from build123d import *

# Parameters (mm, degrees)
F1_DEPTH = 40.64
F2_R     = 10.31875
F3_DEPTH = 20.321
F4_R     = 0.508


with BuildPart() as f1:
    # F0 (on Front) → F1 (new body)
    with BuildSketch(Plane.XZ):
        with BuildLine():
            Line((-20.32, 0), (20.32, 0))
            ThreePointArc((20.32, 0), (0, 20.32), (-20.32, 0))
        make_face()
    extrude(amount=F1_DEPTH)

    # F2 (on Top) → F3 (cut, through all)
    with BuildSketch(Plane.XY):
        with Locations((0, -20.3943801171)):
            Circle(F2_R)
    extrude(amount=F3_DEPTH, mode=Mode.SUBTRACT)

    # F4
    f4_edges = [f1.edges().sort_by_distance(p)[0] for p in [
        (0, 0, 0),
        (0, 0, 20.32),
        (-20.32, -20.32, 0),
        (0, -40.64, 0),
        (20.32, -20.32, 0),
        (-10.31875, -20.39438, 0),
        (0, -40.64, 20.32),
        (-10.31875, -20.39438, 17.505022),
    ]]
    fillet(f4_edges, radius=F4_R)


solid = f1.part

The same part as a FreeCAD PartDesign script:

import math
import FreeCAD as App
import Part
import Sketcher
Q = App.Units.Quantity

doc = App.newDocument("Part")
params = doc.addObject("Spreadsheet::Sheet", "Params")
for row, (alias, value) in enumerate([
    ("sketch1_radius", "0.8 in"),
    ("pad1_length", "1.6 in"),
    ("sketch2_diameter", "0.8125 in"),
    ("fillet_radius", "0.02 in"),
], start=1):
    params.set(f"A{row}", alias)
    params.set(f"B{row}", "=" + value)
    params.setAlias(f"B{row}", alias)

body = doc.addObject("PartDesign::Body", "Body")

# Sketch on XZ plane
sketch1 = body.newObject("Sketcher::SketchObject", "Sketch")
sketch1.AttachmentSupport = (doc.getObject("XZ_Plane"), [""])
sketch1.MapMode = "FlatFace"
sketch1.addGeometry([
    Part.LineSegment(App.Vector(-20, 0, 0), App.Vector(20, 0, 0)),
    Part.ArcOfCircle(Part.Circle(App.Vector(0, 0, 0), App.Vector(0, 0, 1), 20), math.radians(0), math.radians(180)),
], False)
sketch1.addConstraint([
    Sketcher.Constraint("Coincident", 0, 1, 1, 2),
    Sketcher.Constraint("Coincident", 1, 1, 0, 2),
    Sketcher.Constraint("Horizontal", 0),
    Sketcher.Constraint("Coincident", 1, 3, -1, 1),
    Sketcher.Constraint("PointOnObject", 0, 1, -1),
    Sketcher.Constraint("Radius", 1, Q("0.8 in")),
])
sketch1.setExpression("Constraints[5]", "Params.sketch1_radius")
pad1 = body.newObject("PartDesign::Pad", "Pad")
pad1.Profile = sketch1
pad1.setExpression("Length", "Params.pad1_length")

# Sketch on XY plane
sketch2 = body.newObject("Sketcher::SketchObject", "Sketch001")
sketch2.AttachmentSupport = (doc.getObject("XY_Plane"), [""])
sketch2.MapMode = "FlatFace"
sketch2.addGeometry(Part.Circle(App.Vector(0, -20, 0), App.Vector(0, 0, 1), 10), False)
sketch2.addConstraint([
    Sketcher.Constraint("PointOnObject", 0, 3, -2),
    Sketcher.Constraint("Diameter", 0, Q("0.8125 in")),
    Sketcher.Constraint("DistanceY", 0, 3, -1, 1, 20.39438),
])
sketch2.setExpression("Constraints[1]", "Params.sketch2_diameter")
pocket1 = body.newObject("PartDesign::Pocket", "Pocket")
pocket1.Profile = sketch2
pocket1.Type = "ThroughAll"
pocket1.Reversed = True
doc.recompute()

fillet = body.newObject("PartDesign::Fillet", "Fillet")
fillet.Base = (pocket1, ["Edge1"])
fillet.UseAllEdges = True
fillet.setExpression("Radius", "Params.fillet_radius")

doc.recompute()
